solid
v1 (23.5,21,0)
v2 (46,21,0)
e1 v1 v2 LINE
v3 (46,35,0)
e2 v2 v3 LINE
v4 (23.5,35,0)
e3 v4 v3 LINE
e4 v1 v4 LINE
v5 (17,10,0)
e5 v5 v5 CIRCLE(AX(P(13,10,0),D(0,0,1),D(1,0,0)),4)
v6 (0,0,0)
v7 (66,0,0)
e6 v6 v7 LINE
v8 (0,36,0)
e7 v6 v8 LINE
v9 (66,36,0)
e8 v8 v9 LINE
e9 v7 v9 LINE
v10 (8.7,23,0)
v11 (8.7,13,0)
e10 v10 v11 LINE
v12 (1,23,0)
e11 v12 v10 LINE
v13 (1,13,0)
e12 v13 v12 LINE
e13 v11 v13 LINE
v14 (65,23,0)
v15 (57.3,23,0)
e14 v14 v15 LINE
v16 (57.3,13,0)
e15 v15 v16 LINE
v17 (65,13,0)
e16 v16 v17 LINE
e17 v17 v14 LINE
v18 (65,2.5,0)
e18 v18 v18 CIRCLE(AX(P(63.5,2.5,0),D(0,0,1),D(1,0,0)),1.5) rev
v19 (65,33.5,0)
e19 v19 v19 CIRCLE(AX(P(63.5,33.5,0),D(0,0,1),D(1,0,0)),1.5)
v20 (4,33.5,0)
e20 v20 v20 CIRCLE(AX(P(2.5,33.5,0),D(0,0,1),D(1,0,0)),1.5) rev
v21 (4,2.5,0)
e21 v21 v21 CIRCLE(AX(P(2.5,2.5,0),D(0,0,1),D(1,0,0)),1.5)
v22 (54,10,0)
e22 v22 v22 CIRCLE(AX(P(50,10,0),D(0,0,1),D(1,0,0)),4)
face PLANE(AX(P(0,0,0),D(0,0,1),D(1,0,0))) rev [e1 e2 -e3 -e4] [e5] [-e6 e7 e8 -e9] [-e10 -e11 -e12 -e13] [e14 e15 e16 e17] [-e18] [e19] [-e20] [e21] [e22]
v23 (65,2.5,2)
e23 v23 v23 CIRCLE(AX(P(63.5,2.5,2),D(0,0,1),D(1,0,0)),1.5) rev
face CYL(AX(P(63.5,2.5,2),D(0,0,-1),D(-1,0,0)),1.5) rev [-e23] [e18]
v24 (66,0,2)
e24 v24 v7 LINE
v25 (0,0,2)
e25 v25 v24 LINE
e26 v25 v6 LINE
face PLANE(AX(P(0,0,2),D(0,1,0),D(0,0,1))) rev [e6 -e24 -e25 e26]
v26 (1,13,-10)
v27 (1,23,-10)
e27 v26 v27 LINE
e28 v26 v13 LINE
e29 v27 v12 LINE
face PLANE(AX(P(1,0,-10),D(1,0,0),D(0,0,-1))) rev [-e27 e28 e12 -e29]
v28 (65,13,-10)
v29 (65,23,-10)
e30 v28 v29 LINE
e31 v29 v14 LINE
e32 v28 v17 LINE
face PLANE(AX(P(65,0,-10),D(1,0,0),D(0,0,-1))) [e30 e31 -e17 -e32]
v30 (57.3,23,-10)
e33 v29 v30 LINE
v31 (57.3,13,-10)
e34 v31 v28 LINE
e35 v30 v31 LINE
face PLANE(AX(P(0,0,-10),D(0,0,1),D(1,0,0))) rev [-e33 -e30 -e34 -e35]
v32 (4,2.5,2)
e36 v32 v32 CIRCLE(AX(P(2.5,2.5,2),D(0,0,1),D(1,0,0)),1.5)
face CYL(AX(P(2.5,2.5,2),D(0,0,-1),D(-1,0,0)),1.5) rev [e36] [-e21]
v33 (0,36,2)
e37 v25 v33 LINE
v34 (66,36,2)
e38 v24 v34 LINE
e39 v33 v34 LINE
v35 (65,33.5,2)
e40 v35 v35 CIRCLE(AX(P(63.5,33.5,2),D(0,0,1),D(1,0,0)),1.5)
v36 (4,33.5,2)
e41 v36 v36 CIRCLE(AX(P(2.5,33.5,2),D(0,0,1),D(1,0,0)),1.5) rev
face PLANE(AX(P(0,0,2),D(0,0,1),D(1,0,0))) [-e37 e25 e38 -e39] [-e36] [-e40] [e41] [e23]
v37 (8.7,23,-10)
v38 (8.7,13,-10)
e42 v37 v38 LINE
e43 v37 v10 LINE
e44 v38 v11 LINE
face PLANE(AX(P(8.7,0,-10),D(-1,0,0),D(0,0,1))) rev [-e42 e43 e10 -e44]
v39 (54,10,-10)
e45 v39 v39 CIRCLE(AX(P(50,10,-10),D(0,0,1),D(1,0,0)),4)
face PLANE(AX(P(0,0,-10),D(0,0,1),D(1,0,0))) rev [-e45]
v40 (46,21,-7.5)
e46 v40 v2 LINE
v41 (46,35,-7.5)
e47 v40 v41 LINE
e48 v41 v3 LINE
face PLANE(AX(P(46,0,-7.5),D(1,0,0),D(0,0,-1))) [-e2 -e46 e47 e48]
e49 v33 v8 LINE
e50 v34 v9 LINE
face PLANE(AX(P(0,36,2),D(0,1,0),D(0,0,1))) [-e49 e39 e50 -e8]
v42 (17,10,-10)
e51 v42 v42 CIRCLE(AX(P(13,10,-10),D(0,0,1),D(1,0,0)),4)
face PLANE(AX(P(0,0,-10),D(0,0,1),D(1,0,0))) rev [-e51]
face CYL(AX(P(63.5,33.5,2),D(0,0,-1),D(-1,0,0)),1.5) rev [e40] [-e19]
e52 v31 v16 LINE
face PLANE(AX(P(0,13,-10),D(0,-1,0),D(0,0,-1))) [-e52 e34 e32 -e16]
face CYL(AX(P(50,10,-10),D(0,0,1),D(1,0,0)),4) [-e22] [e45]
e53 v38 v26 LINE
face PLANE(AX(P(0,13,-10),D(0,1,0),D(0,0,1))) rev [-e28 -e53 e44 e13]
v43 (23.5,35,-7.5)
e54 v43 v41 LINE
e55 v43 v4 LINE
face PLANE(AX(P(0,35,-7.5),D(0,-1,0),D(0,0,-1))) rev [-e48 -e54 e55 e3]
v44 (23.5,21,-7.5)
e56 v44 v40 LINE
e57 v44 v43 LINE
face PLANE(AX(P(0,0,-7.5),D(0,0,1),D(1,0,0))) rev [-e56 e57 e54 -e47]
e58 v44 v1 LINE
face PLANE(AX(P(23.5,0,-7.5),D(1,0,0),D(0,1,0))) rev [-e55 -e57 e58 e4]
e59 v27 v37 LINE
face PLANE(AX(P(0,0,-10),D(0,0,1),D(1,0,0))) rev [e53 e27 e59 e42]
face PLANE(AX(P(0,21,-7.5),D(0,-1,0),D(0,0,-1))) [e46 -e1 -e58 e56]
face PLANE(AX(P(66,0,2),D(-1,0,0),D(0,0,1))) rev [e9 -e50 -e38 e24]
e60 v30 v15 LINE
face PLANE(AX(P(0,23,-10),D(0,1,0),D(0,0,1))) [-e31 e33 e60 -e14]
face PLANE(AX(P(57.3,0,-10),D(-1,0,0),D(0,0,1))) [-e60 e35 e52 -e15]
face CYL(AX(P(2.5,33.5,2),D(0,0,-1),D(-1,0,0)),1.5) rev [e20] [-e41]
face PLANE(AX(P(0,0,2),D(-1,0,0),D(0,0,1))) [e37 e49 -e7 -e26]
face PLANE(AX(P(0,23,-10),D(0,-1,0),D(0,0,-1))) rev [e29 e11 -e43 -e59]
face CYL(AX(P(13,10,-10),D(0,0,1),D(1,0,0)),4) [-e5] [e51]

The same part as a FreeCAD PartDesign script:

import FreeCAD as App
import Part
import Sketcher
from FreeCAD import Vector
Q = App.Units.Quantity

doc = App.newDocument("Part")
body = doc.addObject("PartDesign::Body", "Body")

sketch1 = body.newObject("Sketcher::SketchObject", "Sketch")
sketch1.AttachmentSupport = (doc.getObject("XY_Plane"), [""])
sketch1.MapMode = "FlatFace"
sketch1.addGeometry([
    Part.LineSegment(Vector(0, 36, 0), Vector(0, 0, 0)),
    Part.LineSegment(Vector(0, 0, 0), Vector(66, 0, 0)),
    Part.LineSegment(Vector(66, 0, 0), Vector(66, 36, 0)),
    Part.LineSegment(Vector(66, 36, 0), Vector(0, 36, 0)),
    Part.Circle(Vector(2.5, 2.5, 0), Vector(0, 0, 1), 1.5),
    Part.Circle(Vector(63.5, 2.5, 0), Vector(0, 0, 1), 1.5),
    Part.Circle(Vector(2.5, 33.5, 0), Vector(0, 0, 1), 1.5),
    Part.Circle(Vector(63.5, 33.5, 0), Vector(0, 0, 1), 1.5),
], False)
sketch1.addConstraint([
    Sketcher.Constraint("Coincident", 0, 2, 1, 1),
    Sketcher.Constraint("Coincident", 1, 2, 2, 1),
    Sketcher.Constraint("Coincident", 2, 2, 3, 1),
    Sketcher.Constraint("Coincident", 3, 2, 0, 1),
    Sketcher.Constraint("Vertical", 0),
    Sketcher.Constraint("Horizontal", 1),
    Sketcher.Constraint("Vertical", 2),
    Sketcher.Constraint("Horizontal", 3),
    Sketcher.Constraint("Coincident", 0, 2, -1, 1),
    Sketcher.Constraint("Equal", 4, 5),
    Sketcher.Constraint("Equal", 5, 6),
    Sketcher.Constraint("Equal", 6, 7),
    Sketcher.Constraint("Horizontal", 4, 3, 5, 3),
    Sketcher.Constraint("Horizontal", 6, 3, 7, 3),
    Sketcher.Constraint("Vertical", 4, 3, 6, 3),
    Sketcher.Constraint("Vertical", 5, 3, 7, 3),
    Sketcher.Constraint("Diameter", 4, Q("3 mm")),
    Sketcher.Constraint("DistanceX", 1, 1, 1, 2, Q("66 mm")),
    Sketcher.Constraint("DistanceY", 0, 2, 0, 1, Q("36 mm")),
    Sketcher.Constraint("DistanceX", 4, 3, 5, 3, Q("61 mm")),
    Sketcher.Constraint("DistanceY", 4, 3, 6, 3, Q("31 mm")),
    Sketcher.Constraint("DistanceX", -1, 1, 4, 3, Q("2.5 mm")),
    Sketcher.Constraint("DistanceY", -1, 1, 4, 3, Q("2.5 mm")),
])
pad1 = body.newObject("PartDesign::Pad", "Pad")
pad1.Profile = sketch1
pad1.Length = 2

sketch2 = body.newObject("Sketcher::SketchObject", "Sketch001")
sketch2.AttachmentSupport = (doc.getObject("XY_Plane"), [""])
sketch2.MapMode = "FlatFace"
sketch2.addGeometry([
    Part.LineSegment(Vector(1, 23, 0), Vector(1, 13, 0)),
    Part.LineSegment(Vector(1, 13, 0), Vector(9, 13, 0)),
    Part.LineSegment(Vector(9, 13, 0), Vector(9, 23, 0)),
    Part.LineSegment(Vector(9, 23, 0), Vector(1, 23, 0)),
    Part.LineSegment(Vector(57, 23, 0), Vector(57, 13, 0)),
    Part.LineSegment(Vector(57, 13, 0), Vector(65, 13, 0)),
    Part.LineSegment(Vector(65, 13, 0), Vector(65, 23, 0)),
    Part.LineSegment(Vector(65, 23, 0), Vector(57, 23, 0)),
], False)
sketch2.addConstraint([
    Sketcher.Constraint("Coincident", 0, 2, 1, 1),
    Sketcher.Constraint("Coincident", 1, 2, 2, 1),
    Sketcher.Constraint("Coincident", 2, 2, 3, 1),
    Sketcher.Constraint("Coincident", 3, 2, 0, 1),
    Sketcher.Constraint("Coincident", 4, 2, 5, 1),
    Sketcher.Constraint("Coincident", 5, 2, 6, 1),
    Sketcher.Constraint("Coincident", 6, 2, 7, 1),
    Sketcher.Constraint("Coincident", 7, 2, 4, 1),
    Sketcher.Constraint("Vertical", 0),
    Sketcher.Constraint("Horizontal", 1),
    Sketcher.Constraint("Vertical", 2),
    Sketcher.Constraint("Horizontal", 3),
    Sketcher.Constraint("Vertical", 4),
    Sketcher.Constraint("Horizontal", 5),
    Sketcher.Constraint("Vertical", 6),
    Sketcher.Constraint("Horizontal", 7),
    Sketcher.Constraint("Horizontal", 1, 2, 4, 2),
    Sketcher.Constraint("Horizontal", 3, 2, 6, 2),
    Sketcher.Constraint("Equal", 3, 5),
    Sketcher.Constraint("DistanceY", 0, 2, 0, 1, Q("10 mm")),
    Sketcher.Constraint("DistanceX", 1, 1, 1, 2, Q("7.7 mm")),
    Sketcher.Constraint("DistanceX", -1, 1, 0, 2, Q("1 mm")),
    Sketcher.Constraint("DistanceY", -1, 1, 0, 2, Q("13 mm")),
    Sketcher.Constraint("DistanceX", -1, 1, 5, 2, Q("65 mm")),
])
pad2 = body.newObject("PartDesign::Pad", "Pad001")
pad2.Profile = sketch2
pad2.Length = 10
pad2.Reversed = True

sketch3 = body.newObject("Sketcher::SketchObject", "Sketch002")
sketch3.AttachmentSupport = (doc.getObject("XY_Plane"), [""])
sketch3.MapMode = "FlatFace"
sketch3.addGeometry([
    Part.LineSegment(Vector(24, 35, 0), Vector(24, 21, 0)),
    Part.LineSegment(Vector(24, 21, 0), Vector(46, 21, 0)),
    Part.LineSegment(Vector(46, 21, 0), Vector(46, 35, 0)),
    Part.LineSegment(Vector(46, 35, 0), Vector(24, 35, 0)),
], False)
sketch3.addConstraint([
    Sketcher.Constraint("Coincident", 0, 2, 1, 1),
    Sketcher.Constraint("Coincident", 1, 2, 2, 1),
    Sketcher.Constraint("Coincident", 2, 2, 3, 1),
    Sketcher.Constraint("Coincident", 3, 2, 0, 1),
    Sketcher.Constraint("Vertical", 0),
    Sketcher.Constraint("Horizontal", 1),
    Sketcher.Constraint("Vertical", 2),
    Sketcher.Constraint("Horizontal", 3),
    Sketcher.Constraint("DistanceY", 0, 2, 0, 1, Q("14 mm")),
    Sketcher.Constraint("DistanceX", 1, 1, 1, 2, Q("22.5 mm")),
    Sketcher.Constraint("DistanceY", -1, 1, 0, 2, Q("21 mm")),
    Sketcher.Constraint("DistanceX", -1, 1, 1, 2, Q("46 mm")),
])
pad3 = body.newObject("PartDesign::Pad", "Pad002")
pad3.Profile = sketch3
pad3.Length = 7.5
pad3.Reversed = True

sketch4 = body.newObject("Sketcher::SketchObject", "Sketch003")
sketch4.AttachmentSupport = (doc.getObject("XY_Plane"), [""])
sketch4.MapMode = "FlatFace"
sketch4.addGeometry([
    Part.Circle(Vector(50, 10, 0), Vector(0, 0, 1), 4),
    Part.Circle(Vector(13, 10, 0), Vector(0, 0, 1), 4),
], False)
sketch4.addConstraint([
    Sketcher.Constraint("Equal", 0, 1),
    Sketcher.Constraint("Horizontal", 0, 3, 1, 3),
    Sketcher.Constraint("Diameter", 0, Q("8 mm")),
    Sketcher.Constraint("DistanceX", -1, 1, 0, 3, Q("50 mm")),
    Sketcher.Constraint("DistanceY", -1, 1, 0, 3, Q("10 mm")),
    Sketcher.Constraint("DistanceX", -1, 1, 1, 3, Q("13 mm")),
])
pad4 = body.newObject("PartDesign::Pad", "Pad003")
pad4.Profile = sketch4
pad4.Length = 10
pad4.Reversed = True

doc.recompute()
